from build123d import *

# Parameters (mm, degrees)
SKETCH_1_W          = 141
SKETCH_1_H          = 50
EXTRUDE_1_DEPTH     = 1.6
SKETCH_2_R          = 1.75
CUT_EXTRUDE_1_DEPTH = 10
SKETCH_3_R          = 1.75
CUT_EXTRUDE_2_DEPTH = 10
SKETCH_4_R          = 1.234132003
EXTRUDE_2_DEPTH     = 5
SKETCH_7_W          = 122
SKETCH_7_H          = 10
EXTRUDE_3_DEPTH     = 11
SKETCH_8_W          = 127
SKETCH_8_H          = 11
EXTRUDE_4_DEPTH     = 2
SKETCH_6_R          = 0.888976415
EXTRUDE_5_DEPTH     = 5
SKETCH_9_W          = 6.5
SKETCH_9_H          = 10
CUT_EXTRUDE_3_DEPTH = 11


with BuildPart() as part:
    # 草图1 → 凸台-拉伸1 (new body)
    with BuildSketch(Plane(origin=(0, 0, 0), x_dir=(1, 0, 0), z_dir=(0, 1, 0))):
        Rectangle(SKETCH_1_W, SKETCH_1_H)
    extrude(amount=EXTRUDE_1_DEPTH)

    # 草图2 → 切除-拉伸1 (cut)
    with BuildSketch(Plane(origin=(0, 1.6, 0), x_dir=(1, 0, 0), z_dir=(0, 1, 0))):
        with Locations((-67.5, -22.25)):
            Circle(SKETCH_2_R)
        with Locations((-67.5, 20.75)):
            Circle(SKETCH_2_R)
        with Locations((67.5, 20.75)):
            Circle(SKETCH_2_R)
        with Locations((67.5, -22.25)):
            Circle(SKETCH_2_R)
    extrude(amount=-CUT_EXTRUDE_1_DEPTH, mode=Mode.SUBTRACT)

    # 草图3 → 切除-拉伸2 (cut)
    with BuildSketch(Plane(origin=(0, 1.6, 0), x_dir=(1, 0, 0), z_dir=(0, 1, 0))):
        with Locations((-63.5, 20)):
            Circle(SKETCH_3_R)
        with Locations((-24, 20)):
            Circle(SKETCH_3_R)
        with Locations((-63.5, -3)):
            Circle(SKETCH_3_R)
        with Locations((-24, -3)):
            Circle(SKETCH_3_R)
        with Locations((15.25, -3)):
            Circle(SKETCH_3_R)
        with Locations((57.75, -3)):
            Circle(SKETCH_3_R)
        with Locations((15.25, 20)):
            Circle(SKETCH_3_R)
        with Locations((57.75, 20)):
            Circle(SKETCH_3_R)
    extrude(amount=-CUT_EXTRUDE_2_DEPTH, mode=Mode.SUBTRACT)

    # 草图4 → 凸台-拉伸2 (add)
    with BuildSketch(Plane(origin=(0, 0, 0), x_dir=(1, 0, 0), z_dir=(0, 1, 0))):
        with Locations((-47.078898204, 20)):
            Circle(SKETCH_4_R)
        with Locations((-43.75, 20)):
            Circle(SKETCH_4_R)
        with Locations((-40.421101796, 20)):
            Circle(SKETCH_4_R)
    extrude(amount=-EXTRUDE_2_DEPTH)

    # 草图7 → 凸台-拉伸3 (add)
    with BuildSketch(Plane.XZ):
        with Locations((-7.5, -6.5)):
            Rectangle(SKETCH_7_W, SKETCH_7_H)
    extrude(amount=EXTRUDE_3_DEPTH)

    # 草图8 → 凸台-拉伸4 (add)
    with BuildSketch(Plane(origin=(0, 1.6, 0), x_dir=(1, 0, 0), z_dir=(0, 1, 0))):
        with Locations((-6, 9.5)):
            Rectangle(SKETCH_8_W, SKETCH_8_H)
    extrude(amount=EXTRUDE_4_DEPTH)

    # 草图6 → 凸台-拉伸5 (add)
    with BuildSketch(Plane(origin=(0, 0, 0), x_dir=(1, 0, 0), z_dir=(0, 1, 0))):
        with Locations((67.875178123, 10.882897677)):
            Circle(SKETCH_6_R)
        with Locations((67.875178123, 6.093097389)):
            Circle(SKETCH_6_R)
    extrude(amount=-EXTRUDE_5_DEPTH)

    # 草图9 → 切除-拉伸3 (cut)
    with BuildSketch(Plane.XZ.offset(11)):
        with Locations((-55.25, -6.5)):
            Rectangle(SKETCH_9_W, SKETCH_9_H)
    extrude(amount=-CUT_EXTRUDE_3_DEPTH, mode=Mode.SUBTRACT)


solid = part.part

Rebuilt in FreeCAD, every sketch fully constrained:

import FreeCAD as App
import Part
import Sketcher
from FreeCAD import Vector
Q = App.Units.Quantity

doc = App.newDocument("Part")
body = doc.addObject("PartDesign::Body", "Body")

# Sketch on XZ plane
sketch1 = body.newObject("Sketcher::SketchObject", "Sketch")
sketch1.AttachmentSupport = (doc.getObject("XZ_Plane"), [""])
sketch1.MapMode = "FlatFace"
sketch1.addGeometry([
    Part.LineSegment(Vector(-70.5, -25, 0), Vector(-70.5, 25, 0)),
    Part.LineSegment(Vector(-70.5, 25, 0), Vector(70.5, 25, 0)),
    Part.LineSegment(Vector(70.5, 25, 0), Vector(70.5, -25, 0)),
    Part.LineSegment(Vector(70.5, -25, 0), Vector(-70.5, -25, 0)),
], False)
sketch1.addConstraint([
    Sketcher.Constraint("Coincident", 0, 2, 1, 1),
    Sketcher.Constraint("Coincident", 1, 2, 2, 1),
    Sketcher.Constraint("Coincident", 2, 2, 3, 1),
    Sketcher.Constraint("Coincident", 3, 2, 0, 1),
    Sketcher.Constraint("Vertical", 0),
    Sketcher.Constraint("Horizontal", 1),
    Sketcher.Constraint("Vertical", 2),
    Sketcher.Constraint("Horizontal", 3),
    Sketcher.Constraint("Symmetric", 0, 2, 2, 2, -1, 1),
    Sketcher.Constraint("DistanceX", 1, 1, 1, 2, Q("141 mm")),
    Sketcher.Constraint("DistanceY", 0, 1, 0, 2, Q("50 mm")),
])
pad1 = body.newObject("PartDesign::Pad", "Pad")
pad1.Profile = sketch1
pad1.Length = 1.6
pad1.Reversed = True

# Sketch on XZ plane
sketch2 = body.newObject("Sketcher::SketchObject", "Sketch001")
sketch2.AttachmentSupport = (doc.getObject("XZ_Plane"), [""])
sketch2.MapMode = "FlatFace"
sketch2.AttachmentOffset = App.Placement(Vector(0, 0, -1.6), App.Rotation())
sketch2.addGeometry([
    Part.Circle(Vector(-67.5, 22.25, 0), Vector(0, 0, 1), 1.75),
    Part.Circle(Vector(-67.5, -20.75, 0), Vector(0, 0, 1), 1.75),
    Part.Circle(Vector(67.5, -20.75, 0), Vector(0, 0, 1), 1.75),
    Part.Circle(Vector(67.5, 22.25, 0), Vector(0, 0, 1), 1.75),
], False)
sketch2.addConstraint([
    Sketcher.Constraint("Equal", 0, 1),
    Sketcher.Constraint("Equal", 1, 2),
    Sketcher.Constraint("Equal", 2, 3),
    Sketcher.Constraint("Symmetric", 1, 3, 2, 3, -2),
    Sketcher.Constraint("Symmetric", 0, 3, 3, 3, -2),
    Sketcher.Constraint("Vertical", 0, 3, 1, 3),
    Sketcher.Constraint("Diameter", 0, Q("3.5 mm")),
    Sketcher.Constraint("DistanceY", 1, 3, 0, 3, Q("43 mm")),
    Sketcher.Constraint("DistanceX", 1, 3, 2, 3, Q("135 mm")),
    Sketcher.Constraint("DistanceY", -1, 1, 0, 3, Q("22.25 mm")),
])
pocket1 = body.newObject("PartDesign::Pocket", "Pocket")
pocket1.Profile = sketch2
pocket1.Length = 10
pocket1.Reversed = True

# Sketch on XZ plane
sketch3 = body.newObject("Sketcher::SketchObject", "Sketch002")
sketch3.AttachmentSupport = (doc.getObject("XZ_Plane"), [""])
sketch3.MapMode = "FlatFace"
sketch3.AttachmentOffset = App.Placement(Vector(0, 0, -1.6), App.Rotation())
sketch3.addGeometry([
    Part.Circle(Vector(-63.5, -20, 0), Vector(0, 0, 1), 1.75),  # 0
    Part.Circle(Vector(-24, -20, 0), Vector(0, 0, 1), 1.75),  # 1
    Part.Circle(Vector(-63.5, 3, 0), Vector(0, 0, 1), 1.75),  # 2
    Part.Circle(Vector(-24, 3, 0), Vector(0, 0, 1), 1.75),  # 3
    Part.Circle(Vector(15.25, 3, 0), Vector(0, 0, 1), 1.75),  # 4
    Part.Circle(Vector(57.75, 3, 0), Vector(0, 0, 1), 1.75),  # 5
    Part.Circle(Vector(15.25, -20, 0), Vector(0, 0, 1), 1.75),  # 6
    Part.Circle(Vector(57.75, -20, 0), Vector(0, 0, 1), 1.75),  # 7
], False)
sketch3.addConstraint([
    Sketcher.Constraint("Equal", 0, 1),
    Sketcher.Constraint("Equal", 1, 2),
    Sketcher.Constraint("Equal", 2, 3),
    Sketcher.Constraint("Equal", 3, 4),
    Sketcher.Constraint("Equal", 4, 5),
    Sketcher.Constraint("Equal", 5, 6),
    Sketcher.Constraint("Equal", 6, 7),
    Sketcher.Constraint("Horizontal", 0, 3, 1, 3),
    Sketcher.Constraint("Horizontal", 2, 3, 3, 3),
    Sketcher.Constraint("Horizontal", 3, 3, 4, 3),
    Sketcher.Constraint("Horizontal", 4, 3, 5, 3),
    Sketcher.Constraint("Horizontal", 1, 3, 6, 3),
    Sketcher.Constraint("Horizontal", 6, 3, 7, 3),
    Sketcher.Constraint("Vertical", 0, 3, 2, 3),
    Sketcher.Constraint("Vertical", 1, 3, 3, 3),
    Sketcher.Constraint("Vertical", 4, 3, 6, 3),
    Sketcher.Constraint("Vertical", 5, 3, 7, 3),
    Sketcher.Constraint("Diameter", 0, Q("3.5 mm")),
    Sketcher.Constraint("DistanceY", 0, 3, -1, 1, Q("20 mm")),
    Sketcher.Constraint("DistanceX", 1, 3, -1, 1, Q("24 mm")),
    Sketcher.Constraint("DistanceY", -1, 1, 2, 3, Q("3 mm")),
    Sketcher.Constraint("DistanceX", 0, 3, -1, 1, Q("63.5 mm")),
    Sketcher.Constraint("DistanceX", 4, 3, 5, 3, Q("42.5 mm")),
    Sketcher.Constraint("DistanceX", -1, 1, 4, 3, Q("15.25 mm")),
])
pocket2 = body.newObject("PartDesign::Pocket", "Pocket001")
pocket2.Profile = sketch3
pocket2.Length = 10
pocket2.Reversed = True

# Sketch on XZ plane
sketch4 = body.newObject("Sketcher::SketchObject", "Sketch003")
sketch4.AttachmentSupport = (doc.getObject("XZ_Plane"), [""])
sketch4.MapMode = "FlatFace"
sketch4.addGeometry([
    Part.Circle(Vector(-47.078898, -20, 0), Vector(0, 0, 1), 1.234132),
    Part.Circle(Vector(-43.75, -20, 0), Vector(0, 0, 1), 1.234132),
    Part.Circle(Vector(-40.421102, -20, 0), Vector(0, 0, 1), 1.234132),
], False)
sketch4.addConstraint([
    Sketcher.Constraint("Equal", 0, 1),
    Sketcher.Constraint("Equal", 1, 2),
    Sketcher.Constraint("Horizontal", 0, 3, 1, 3),
    Sketcher.Constraint("Horizontal", 1, 3, 2, 3),
    Sketcher.Constraint("DistanceY", 0, 3, -1, 1, Q("20 mm")),
    Sketcher.Constraint("DistanceX", 1, 3, -1, 1, Q("43.75 mm")),
    Sketcher.Constraint("Diameter", 0, Q("2.468264 mm")),
    Sketcher.Constraint("DistanceX", 0, 3, -1, 1, Q("47.078898 mm")),
    Sketcher.Constraint("DistanceX", 2, 3, -1, 1, Q("40.421102 mm")),
])
pad2 = body.newObject("PartDesign::Pad", "Pad001")
pad2.Profile = sketch4
pad2.Length = 5

# Sketch on XZ plane
sketch5 = body.newObject("Sketcher::SketchObject", "Sketch004")
sketch5.AttachmentSupport = (doc.getObject("XZ_Plane"), [""])
sketch5.MapMode = "FlatFace"
sketch5.addGeometry([
    Part.LineSegment(Vector(-68.5, -1.5, 0), Vector(-68.5, -11.5, 0)),
    Part.LineSegment(Vector(-68.5, -11.5, 0), Vector(53.5, -11.5, 0)),
    Part.LineSegment(Vector(53.5, -11.5, 0), Vector(53.5, -1.5, 0)),
    Part.LineSegment(Vector(53.5, -1.5, 0), Vector(-68.5, -1.5, 0)),
], False)
sketch5.addConstraint([
    Sketcher.Constraint("Coincident", 0, 2, 1, 1),
    Sketcher.Constraint("Coincident", 1, 2, 2, 1),
    Sketcher.Constraint("Coincident", 2, 2, 3, 1),
    Sketcher.Constraint("Coincident", 3, 2, 0, 1),
    Sketcher.Constraint("Vertical", 0),
    Sketcher.Constraint("Horizontal", 1),
    Sketcher.Constraint("Vertical", 2),
    Sketcher.Constraint("Horizontal", 3),
    Sketcher.Constraint("DistanceX", 1, 1, 1, 2, Q("122 mm")),
    Sketcher.Constraint("DistanceY", 0, 2, 0, 1, Q("10 mm")),
    Sketcher.Constraint("DistanceX", 0, 2, -1, 1, Q("68.5 mm")),
    Sketcher.Constraint("DistanceY", 0, 2, -1, 1, Q("11.5 mm")),
])
pad3 = body.newObject("PartDesign::Pad", "Pad002")
pad3.Profile = sketch5
pad3.Length = 11

# Sketch on XZ plane
sketch6 = body.newObject("Sketcher::SketchObject", "Sketch005")
sketch6.AttachmentSupport = (doc.getObject("XZ_Plane"), [""])
sketch6.MapMode = "FlatFace"
sketch6.AttachmentOffset = App.Placement(Vector(0, 0, -1.6), App.Rotation())
sketch6.addGeometry([
    Part.LineSegment(Vector(-69.5, -15, 0), Vector(-69.5, -4, 0)),
    Part.LineSegment(Vector(-69.5, -4, 0), Vector(57.5, -4, 0)),
    Part.LineSegment(Vector(57.5, -4, 0), Vector(57.5, -15, 0)),
    Part.LineSegment(Vector(57.5, -15, 0), Vector(-69.5, -15, 0)),
], False)
sketch6.addConstraint([
    Sketcher.Constraint("Coincident", 0, 2, 1, 1),
    Sketcher.Constraint("Coincident", 1, 2, 2, 1),
    Sketcher.Constraint("Coincident", 2, 2, 3, 1),
    Sketcher.Constraint("Coincident", 3, 2, 0, 1),
    Sketcher.Constraint("Vertical", 0),
    Sketcher.Constraint("Horizontal", 1),
    Sketcher.Constraint("Vertical", 2),
    Sketcher.Constraint("Horizontal", 3),
    Sketcher.Constraint("DistanceX", 1, 1, 1, 2, Q("127 mm")),
    Sketcher.Constraint("DistanceY", 0, 1, 0, 2, Q("11 mm")),
    Sketcher.Constraint("DistanceY", 0, 2, -1, 1, Q("4 mm")),
    Sketcher.Constraint("DistanceX", 0, 2, -1, 1, Q("69.5 mm")),
])
pad4 = body.newObject("PartDesign::Pad", "Pad003")
pad4.Profile = sketch6
pad4.Length = 2
pad4.Reversed = True

# Sketch on XZ plane
sketch7 = body.newObject("Sketcher::SketchObject", "Sketch006")
sketch7.AttachmentSupport = (doc.getObject("XZ_Plane"), [""])
sketch7.MapMode = "FlatFace"
sketch7.addGeometry([
    Part.Circle(Vector(67.875178, -10.882898, 0), Vector(0, 0, 1), 0.888976),
    Part.Circle(Vector(67.875178, -6.093097, 0), Vector(0, 0, 1), 0.888976),
], False)
sketch7.addConstraint([
    Sketcher.Constraint("Equal", 0, 1),
    Sketcher.Constraint("Vertical", 0, 3, 1, 3),
    Sketcher.Constraint("Diameter", 0, Q("1.777953 mm")),
    Sketcher.Constraint("DistanceY", 0, 3, 1, 3, Q("4.7898 mm")),
    Sketcher.Constraint("DistanceX", -1, 1, 0, 3, Q("67.875178 mm")),
    Sketcher.Constraint("DistanceY", 0, 3, -1, 1, Q("10.882898 mm")),
])
pad5 = body.newObject("PartDesign::Pad", "Pad004")
pad5.Profile = sketch7
pad5.Length = 5

# Sketch on XZ plane
sketch8 = body.newObject("Sketcher::SketchObject", "Sketch007")
sketch8.AttachmentSupport = (doc.getObject("XZ_Plane"), [""])
sketch8.MapMode = "FlatFace"
sketch8.AttachmentOffset = App.Placement(Vector(0, 0, 11), App.Rotation())
sketch8.addGeometry([
    Part.LineSegment(Vector(-58.5, -1.5, 0), Vector(-58.5, -11.5, 0)),
    Part.LineSegment(Vector(-58.5, -11.5, 0), Vector(-52, -11.5, 0)),
    Part.LineSegment(Vector(-52, -11.5, 0), Vector(-52, -1.5, 0)),
    Part.LineSegment(Vector(-52, -1.5, 0), Vector(-58.5, -1.5, 0)),
], False)
sketch8.addConstraint([
    Sketcher.Constraint("Coincident", 0, 2, 1, 1),
    Sketcher.Constraint("Coincident", 1, 2, 2, 1),
    Sketcher.Constraint("Coincident", 2, 2, 3, 1),
    Sketcher.Constraint("Coincident", 3, 2, 0, 1),
    Sketcher.Constraint("Vertical", 0),
    Sketcher.Constraint("Horizontal", 1),
    Sketcher.Constraint("Vertical", 2),
    Sketcher.Constraint("Horizontal", 3),
    Sketcher.Constraint("DistanceY", 0, 2, 0, 1, Q("10 mm")),
    Sketcher.Constraint("DistanceX", 1, 1, 1, 2, Q("6.5 mm")),
    Sketcher.Constraint("DistanceX", 1, 2, -1, 1, Q("52 mm")),
    Sketcher.Constraint("DistanceY", 0, 2, -1, 1, Q("11.5 mm")),
])
pocket3 = body.newObject("PartDesign::Pocket", "Pocket002")
pocket3.Profile = sketch8
pocket3.Length = 11

doc.recompute()
